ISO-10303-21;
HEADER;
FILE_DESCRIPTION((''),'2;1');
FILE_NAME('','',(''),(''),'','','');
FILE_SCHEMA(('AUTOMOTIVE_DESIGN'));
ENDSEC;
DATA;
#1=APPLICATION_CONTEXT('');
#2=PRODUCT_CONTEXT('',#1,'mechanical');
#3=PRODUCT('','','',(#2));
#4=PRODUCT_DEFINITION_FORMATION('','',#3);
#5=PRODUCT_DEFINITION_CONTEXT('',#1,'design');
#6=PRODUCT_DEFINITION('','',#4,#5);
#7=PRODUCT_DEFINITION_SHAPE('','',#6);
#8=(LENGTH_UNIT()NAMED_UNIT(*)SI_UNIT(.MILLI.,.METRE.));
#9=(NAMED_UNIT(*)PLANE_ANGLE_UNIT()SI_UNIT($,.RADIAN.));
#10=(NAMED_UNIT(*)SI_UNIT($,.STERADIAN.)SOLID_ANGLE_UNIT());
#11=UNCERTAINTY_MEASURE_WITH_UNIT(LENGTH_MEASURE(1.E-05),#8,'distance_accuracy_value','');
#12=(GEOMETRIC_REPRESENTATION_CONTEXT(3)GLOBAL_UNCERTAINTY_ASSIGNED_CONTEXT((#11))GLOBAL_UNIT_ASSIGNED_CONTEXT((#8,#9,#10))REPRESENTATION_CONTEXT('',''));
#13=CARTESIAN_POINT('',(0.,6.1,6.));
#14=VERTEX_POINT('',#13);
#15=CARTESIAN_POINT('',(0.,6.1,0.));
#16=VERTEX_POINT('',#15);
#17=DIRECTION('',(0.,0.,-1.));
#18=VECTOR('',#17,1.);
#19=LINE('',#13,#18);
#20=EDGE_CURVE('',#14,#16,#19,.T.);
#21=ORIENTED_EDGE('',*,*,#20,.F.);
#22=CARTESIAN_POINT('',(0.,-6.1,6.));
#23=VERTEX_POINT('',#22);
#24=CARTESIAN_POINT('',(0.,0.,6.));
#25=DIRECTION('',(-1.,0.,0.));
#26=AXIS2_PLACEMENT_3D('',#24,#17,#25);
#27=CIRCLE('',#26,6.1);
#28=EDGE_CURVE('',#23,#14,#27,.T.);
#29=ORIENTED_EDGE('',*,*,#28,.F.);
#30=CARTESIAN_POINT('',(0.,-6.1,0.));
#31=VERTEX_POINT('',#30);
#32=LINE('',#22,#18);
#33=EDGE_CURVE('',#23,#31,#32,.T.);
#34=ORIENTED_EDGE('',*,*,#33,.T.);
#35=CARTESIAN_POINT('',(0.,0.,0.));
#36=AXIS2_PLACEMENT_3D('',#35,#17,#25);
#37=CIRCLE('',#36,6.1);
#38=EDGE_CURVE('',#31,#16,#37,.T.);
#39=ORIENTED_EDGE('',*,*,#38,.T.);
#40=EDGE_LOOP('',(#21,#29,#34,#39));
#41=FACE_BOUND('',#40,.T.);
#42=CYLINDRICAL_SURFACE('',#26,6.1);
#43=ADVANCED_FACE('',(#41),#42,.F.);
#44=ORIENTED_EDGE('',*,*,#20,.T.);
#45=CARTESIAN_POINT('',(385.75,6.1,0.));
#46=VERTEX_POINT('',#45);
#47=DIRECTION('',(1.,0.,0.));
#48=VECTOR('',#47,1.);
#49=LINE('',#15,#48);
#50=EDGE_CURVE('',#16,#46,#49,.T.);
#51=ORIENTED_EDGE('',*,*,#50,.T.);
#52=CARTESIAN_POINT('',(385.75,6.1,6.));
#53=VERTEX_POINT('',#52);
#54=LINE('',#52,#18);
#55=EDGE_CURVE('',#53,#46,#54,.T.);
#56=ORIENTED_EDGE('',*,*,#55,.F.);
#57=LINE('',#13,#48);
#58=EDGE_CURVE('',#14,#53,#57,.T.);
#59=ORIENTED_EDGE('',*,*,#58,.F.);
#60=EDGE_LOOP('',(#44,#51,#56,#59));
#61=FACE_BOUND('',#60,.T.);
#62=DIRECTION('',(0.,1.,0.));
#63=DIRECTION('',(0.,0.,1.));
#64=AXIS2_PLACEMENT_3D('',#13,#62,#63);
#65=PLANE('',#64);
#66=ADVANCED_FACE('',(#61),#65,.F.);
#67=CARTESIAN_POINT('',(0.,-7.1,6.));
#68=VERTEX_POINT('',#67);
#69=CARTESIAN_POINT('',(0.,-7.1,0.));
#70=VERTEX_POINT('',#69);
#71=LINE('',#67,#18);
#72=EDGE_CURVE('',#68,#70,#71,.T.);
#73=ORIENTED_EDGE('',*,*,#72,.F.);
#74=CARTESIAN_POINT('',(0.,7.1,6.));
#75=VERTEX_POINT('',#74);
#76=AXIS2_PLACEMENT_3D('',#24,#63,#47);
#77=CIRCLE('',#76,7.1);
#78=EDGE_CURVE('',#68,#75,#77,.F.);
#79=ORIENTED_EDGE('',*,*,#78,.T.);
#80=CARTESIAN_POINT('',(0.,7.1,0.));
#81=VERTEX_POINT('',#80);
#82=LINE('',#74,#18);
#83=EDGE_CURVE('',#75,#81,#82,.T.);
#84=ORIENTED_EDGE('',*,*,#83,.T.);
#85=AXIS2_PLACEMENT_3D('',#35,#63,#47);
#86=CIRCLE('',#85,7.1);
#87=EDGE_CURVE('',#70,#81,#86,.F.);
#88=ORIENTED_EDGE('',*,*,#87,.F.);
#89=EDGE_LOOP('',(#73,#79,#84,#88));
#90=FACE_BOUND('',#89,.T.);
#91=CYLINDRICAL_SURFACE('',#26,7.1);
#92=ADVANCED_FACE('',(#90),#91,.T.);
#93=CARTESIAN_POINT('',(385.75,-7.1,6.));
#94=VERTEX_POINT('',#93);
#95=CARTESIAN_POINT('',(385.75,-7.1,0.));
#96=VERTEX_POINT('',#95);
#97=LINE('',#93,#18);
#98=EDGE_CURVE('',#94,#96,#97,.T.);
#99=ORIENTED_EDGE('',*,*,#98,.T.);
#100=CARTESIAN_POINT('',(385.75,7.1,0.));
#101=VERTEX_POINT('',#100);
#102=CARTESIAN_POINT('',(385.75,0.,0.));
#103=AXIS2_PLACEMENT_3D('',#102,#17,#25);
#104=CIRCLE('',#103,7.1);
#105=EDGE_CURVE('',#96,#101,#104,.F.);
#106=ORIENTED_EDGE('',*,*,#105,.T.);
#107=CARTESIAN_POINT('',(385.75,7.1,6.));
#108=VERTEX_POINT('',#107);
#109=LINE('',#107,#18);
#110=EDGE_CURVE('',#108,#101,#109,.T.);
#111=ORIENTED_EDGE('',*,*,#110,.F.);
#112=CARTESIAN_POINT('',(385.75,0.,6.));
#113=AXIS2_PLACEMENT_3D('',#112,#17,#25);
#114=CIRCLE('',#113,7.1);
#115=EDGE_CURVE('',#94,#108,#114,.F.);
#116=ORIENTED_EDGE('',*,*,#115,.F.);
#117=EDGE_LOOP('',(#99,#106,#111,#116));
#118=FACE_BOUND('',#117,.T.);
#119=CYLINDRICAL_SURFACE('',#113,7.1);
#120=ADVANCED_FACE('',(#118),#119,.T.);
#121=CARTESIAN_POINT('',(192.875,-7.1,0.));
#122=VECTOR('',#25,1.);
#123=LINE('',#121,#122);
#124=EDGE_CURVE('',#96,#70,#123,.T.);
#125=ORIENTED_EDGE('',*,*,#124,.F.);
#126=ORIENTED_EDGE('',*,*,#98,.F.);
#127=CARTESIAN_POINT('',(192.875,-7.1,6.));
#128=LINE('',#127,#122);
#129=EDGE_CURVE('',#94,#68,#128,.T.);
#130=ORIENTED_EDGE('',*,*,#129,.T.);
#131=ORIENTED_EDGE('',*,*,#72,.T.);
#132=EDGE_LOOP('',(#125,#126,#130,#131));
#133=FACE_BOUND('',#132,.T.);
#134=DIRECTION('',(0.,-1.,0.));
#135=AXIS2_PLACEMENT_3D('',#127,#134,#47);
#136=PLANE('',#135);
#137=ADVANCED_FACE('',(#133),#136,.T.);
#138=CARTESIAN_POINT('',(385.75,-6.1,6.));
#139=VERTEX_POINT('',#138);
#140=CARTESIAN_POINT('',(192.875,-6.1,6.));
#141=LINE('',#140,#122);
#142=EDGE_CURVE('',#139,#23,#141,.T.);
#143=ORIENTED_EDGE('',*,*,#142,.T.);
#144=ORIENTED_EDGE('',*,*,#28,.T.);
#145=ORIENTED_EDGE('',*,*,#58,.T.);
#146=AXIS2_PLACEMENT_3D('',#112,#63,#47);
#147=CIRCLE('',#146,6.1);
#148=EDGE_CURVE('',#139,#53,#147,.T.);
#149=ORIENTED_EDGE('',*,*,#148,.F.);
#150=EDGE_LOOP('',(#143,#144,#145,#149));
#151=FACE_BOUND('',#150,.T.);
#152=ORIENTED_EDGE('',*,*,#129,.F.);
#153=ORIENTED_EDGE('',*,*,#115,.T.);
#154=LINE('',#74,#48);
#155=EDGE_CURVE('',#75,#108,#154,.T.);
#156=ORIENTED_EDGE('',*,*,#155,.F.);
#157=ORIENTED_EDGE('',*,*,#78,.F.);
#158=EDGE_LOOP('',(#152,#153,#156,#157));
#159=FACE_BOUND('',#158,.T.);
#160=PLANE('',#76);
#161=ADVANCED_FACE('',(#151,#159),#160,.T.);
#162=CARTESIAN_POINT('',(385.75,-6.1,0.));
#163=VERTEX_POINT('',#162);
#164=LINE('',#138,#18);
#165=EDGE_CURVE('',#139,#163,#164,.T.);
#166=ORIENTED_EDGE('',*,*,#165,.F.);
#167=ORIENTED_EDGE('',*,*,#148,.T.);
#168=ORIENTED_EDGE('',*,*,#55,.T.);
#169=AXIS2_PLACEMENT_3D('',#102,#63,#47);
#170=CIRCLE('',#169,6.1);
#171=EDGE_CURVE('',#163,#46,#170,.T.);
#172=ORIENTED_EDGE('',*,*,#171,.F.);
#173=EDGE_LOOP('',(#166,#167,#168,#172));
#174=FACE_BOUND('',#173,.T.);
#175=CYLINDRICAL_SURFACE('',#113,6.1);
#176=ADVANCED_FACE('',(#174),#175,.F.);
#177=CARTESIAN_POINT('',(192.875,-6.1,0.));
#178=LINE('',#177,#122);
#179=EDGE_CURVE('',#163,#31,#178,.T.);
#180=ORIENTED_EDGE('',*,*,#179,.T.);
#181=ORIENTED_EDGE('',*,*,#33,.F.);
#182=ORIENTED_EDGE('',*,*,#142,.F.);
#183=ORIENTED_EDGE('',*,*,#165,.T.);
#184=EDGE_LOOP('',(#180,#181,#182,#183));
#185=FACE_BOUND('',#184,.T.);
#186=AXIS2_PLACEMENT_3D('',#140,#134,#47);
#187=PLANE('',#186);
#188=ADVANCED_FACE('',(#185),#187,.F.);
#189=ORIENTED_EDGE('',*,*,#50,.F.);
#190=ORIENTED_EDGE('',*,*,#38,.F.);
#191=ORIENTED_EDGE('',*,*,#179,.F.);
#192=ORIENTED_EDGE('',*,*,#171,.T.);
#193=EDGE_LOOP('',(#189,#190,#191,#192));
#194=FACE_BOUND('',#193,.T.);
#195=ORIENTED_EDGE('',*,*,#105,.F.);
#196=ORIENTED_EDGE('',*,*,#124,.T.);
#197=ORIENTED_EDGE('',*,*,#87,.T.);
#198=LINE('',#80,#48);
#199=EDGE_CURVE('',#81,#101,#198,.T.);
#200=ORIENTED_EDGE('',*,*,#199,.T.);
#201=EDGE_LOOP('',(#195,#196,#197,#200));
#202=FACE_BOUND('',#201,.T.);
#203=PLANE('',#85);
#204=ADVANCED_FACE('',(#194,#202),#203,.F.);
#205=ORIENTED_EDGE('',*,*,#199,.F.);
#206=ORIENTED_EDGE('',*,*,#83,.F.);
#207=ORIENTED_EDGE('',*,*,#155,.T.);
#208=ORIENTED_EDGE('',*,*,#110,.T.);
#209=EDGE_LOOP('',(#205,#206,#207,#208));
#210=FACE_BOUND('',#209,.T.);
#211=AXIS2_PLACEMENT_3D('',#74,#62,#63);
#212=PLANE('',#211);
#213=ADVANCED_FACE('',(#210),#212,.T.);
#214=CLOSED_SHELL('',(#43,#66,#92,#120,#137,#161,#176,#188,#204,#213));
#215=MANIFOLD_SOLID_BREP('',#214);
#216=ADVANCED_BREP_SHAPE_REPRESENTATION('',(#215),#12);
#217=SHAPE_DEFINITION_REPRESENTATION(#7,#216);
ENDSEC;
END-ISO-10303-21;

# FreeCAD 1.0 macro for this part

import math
import FreeCAD as App
import Part
import Sketcher
Q = App.Units.Quantity

doc = App.newDocument("Part")
body = doc.addObject("PartDesign::Body", "Body")

sketch1 = body.newObject("Sketcher::SketchObject", "Sketch")
sketch1.AttachmentSupport = (doc.getObject("XY_Plane"), [""])
sketch1.MapMode = "FlatFace"
sketch1.addGeometry([
    Part.LineSegment(App.Vector(192.9, -6.1, 0), App.Vector(0, -6.1, 0)),
    Part.ArcOfCircle(Part.Circle(App.Vector(0, 0, 0), App.Vector(0, 0, 1), 6.1), math.radians(90), math.radians(270)),
    Part.LineSegment(App.Vector(0, 6.1, 0), App.Vector(192.9, 6.1, 0)),
    Part.LineSegment(App.Vector(192.9, 6.1, 0), App.Vector(192.9, 7.1, 0)),
    Part.LineSegment(App.Vector(192.9, 7.1, 0), App.Vector(0, 7.1, 0)),
    Part.ArcOfCircle(Part.Circle(App.Vector(0, 0, 0), App.Vector(0, 0, 1), 7.1), math.radians(90), math.radians(270)),
    Part.LineSegment(App.Vector(0, -7.1, 0), App.Vector(192.9, -7.1, 0)),
    Part.LineSegment(App.Vector(192.9, -7.1, 0), App.Vector(192.9, -6.1, 0)),
], False)
sketch1.addConstraint([
    Sketcher.Constraint("Tangent", 0, 2, 1, 2),
    Sketcher.Constraint("Tangent", 1, 1, 2, 1),
    Sketcher.Constraint("Coincident", 2, 2, 3, 1),
    Sketcher.Constraint("Coincident", 3, 2, 4, 1),
    Sketcher.Constraint("Tangent", 4, 2, 5, 1),
    Sketcher.Constraint("Tangent", 5, 2, 6, 1),
    Sketcher.Constraint("Coincident", 6, 2, 7, 1),
    Sketcher.Constraint("Coincident", 7, 2, 0, 1),
    Sketcher.Constraint("Horizontal", 0),
    Sketcher.Constraint("Horizontal", 2),
    Sketcher.Constraint("Vertical", 3),
    Sketcher.Constraint("Horizontal", 4),
    Sketcher.Constraint("Horizontal", 6),
    Sketcher.Constraint("Vertical", 7),
    Sketcher.Constraint("Coincident", 1, 3, -1, 1),
    Sketcher.Constraint("Coincident", 5, 3, -1, 1),
    Sketcher.Constraint("Vertical", 3, 2, 6, 2),
    Sketcher.Constraint("Radius", 1, Q("6.1 mm")),
    Sketcher.Constraint("Radius", 5, Q("7.1 mm")),
    Sketcher.Constraint("DistanceX", 0, 2, 0, 1, Q("192.875 mm")),
])
pad1 = body.newObject("PartDesign::Pad", "Pad")
pad1.Profile = sketch1
pad1.Length = 6
doc.recompute()

datumplane = body.newObject("PartDesign::Plane", "DatumPlane")
datumplane.AttachmentSupport = (doc.getObject("YZ_Plane"), [""])
datumplane.MapMode = "FlatFace"
datumplane.AttachmentOffset = App.Placement(App.Vector(0, 0, 192.875), App.Rotation())
mirrored = body.newObject("PartDesign::Mirrored", "Mirrored")
mirrored.Originals = [pad1]
mirrored.MirrorPlane = (datumplane, [""])
body.Tip = mirrored

doc.recompute()
